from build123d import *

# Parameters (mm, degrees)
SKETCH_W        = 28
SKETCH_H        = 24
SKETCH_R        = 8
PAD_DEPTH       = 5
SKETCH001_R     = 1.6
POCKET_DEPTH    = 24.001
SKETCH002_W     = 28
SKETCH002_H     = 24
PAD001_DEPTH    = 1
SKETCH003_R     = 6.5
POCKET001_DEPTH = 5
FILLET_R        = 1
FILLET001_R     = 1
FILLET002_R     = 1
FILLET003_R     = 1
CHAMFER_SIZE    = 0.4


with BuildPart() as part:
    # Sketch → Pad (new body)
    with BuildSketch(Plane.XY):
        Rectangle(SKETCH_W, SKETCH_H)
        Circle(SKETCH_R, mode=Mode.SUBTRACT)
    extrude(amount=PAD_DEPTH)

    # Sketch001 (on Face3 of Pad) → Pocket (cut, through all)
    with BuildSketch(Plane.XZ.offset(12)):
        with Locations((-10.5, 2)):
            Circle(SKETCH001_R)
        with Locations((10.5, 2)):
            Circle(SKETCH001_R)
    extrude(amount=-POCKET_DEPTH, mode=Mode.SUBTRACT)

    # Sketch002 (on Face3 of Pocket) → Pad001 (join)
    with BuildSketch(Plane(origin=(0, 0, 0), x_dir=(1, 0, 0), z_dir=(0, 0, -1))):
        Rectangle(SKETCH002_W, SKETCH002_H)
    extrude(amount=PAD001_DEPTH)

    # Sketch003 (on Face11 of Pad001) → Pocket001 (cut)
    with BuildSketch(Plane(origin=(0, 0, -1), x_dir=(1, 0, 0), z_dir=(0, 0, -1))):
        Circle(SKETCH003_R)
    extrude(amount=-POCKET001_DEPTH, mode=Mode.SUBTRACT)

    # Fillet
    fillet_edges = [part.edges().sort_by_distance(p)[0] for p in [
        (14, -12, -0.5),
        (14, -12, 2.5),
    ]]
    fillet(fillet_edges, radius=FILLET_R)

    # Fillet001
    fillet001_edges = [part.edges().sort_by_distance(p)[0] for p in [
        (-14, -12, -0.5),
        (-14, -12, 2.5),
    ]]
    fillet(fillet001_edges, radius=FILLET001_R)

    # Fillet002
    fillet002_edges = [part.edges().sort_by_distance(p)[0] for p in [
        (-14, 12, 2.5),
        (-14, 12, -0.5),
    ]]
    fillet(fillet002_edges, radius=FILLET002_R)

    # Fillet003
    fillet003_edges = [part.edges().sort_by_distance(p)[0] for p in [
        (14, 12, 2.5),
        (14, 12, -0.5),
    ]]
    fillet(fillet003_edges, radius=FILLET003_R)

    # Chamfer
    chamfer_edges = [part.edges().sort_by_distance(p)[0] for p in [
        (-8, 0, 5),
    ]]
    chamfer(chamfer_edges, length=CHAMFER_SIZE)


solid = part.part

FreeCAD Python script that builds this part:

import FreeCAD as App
import Part
import Sketcher

V = App.Vector


def edges_at(feature, points):
    """Names of the edges that pass closest to the given points."""
    edges = feature.Shape.Edges
    near = lambda p: min(range(len(edges)), key=lambda i: edges[i].distToShape(Part.Vertex(*p))[0])
    return sorted({f"Edge{near(p) + 1}" for p in points})


def add_polygon(sketch, points):
    """Adds a closed chain of lines whose ends are joined by coincident constraints."""
    first, n = sketch.GeometryCount, len(points)
    for a, b in zip(points, points[1:] + points[:1]):
        sketch.addGeometry(Part.LineSegment(App.Vector(*a, 0), App.Vector(*b, 0)), False)
    for i in range(n):
        sketch.addConstraint(Sketcher.Constraint("Coincident", first + i, 2, first + (i + 1) % n, 1))

doc = App.newDocument("Part")
params = doc.addObject("Spreadsheet::Sheet", "Params")
for row, (alias, value) in enumerate([
    ("sketch1_diameter", "16 mm"),
    ("sketch1_width", "28 mm"),
    ("sketch1_height", "24 mm"),
    ("pad1_length", "5 mm"),
    ("sketch2_diameter", "3.2 mm"),
    ("sketch3_width", "28 mm"),
    ("sketch3_height", "24 mm"),
    ("pad2_length", "1 mm"),
    ("sketch4_diameter", "13 mm"),
    ("pocket2_length", "5 mm"),
    ("fillet_radius", "1 mm"),
    ("fillet2_radius", "1 mm"),
    ("fillet3_radius", "1 mm"),
    ("fillet4_radius", "1 mm"),
    ("chamfer_size", "0.4 mm"),
], start=1):
    params.set(f"A{row}", alias)
    params.set(f"B{row}", "=" + value)
    params.setAlias(f"B{row}", alias)

body = doc.addObject("PartDesign::Body", "Body")

sketch1 = body.newObject("Sketcher::SketchObject", "Sketch")
sketch1.AttachmentSupport = (doc.getObject("XY_Plane"), [""])
sketch1.MapMode = "FlatFace"
add_polygon(sketch1, [(-14, 12), (-14, -12), (14, -12), (14, 12)])
sketch1.addGeometry(Part.Circle(V(0, 0, 0), V(0, 0, 1), 8), False)
sketch1.addConstraint(Sketcher.Constraint("Vertical", 0))
sketch1.addConstraint(Sketcher.Constraint("Horizontal", 1))
sketch1.addConstraint(Sketcher.Constraint("Vertical", 2))
sketch1.addConstraint(Sketcher.Constraint("Horizontal", 3))
sketch1.addConstraint(Sketcher.Constraint("Coincident", 4, 3, -1, 1))
sketch1.addConstraint(Sketcher.Constraint("Symmetric", 0, 2, 2, 2, -1, 1))
sketch1.addConstraint(Sketcher.Constraint("Diameter", 4, 16.0))
sketch1.addConstraint(Sketcher.Constraint("DistanceX", 1, 1, 1, 2, 28.0))
sketch1.addConstraint(Sketcher.Constraint("DistanceY", 0, 2, 0, 1, 24.0))
sketch1.setExpression("Constraints[10]", "Params.sketch1_diameter")
sketch1.setExpression("Constraints[11]", "Params.sketch1_width")
sketch1.setExpression("Constraints[12]", "Params.sketch1_height")
pad1 = body.newObject("PartDesign::Pad", "Pad")
pad1.Profile = sketch1
pad1.setExpression("Length", "Params.pad1_length")

sketch2 = body.newObject("Sketcher::SketchObject", "Sketch001")
sketch2.AttachmentSupport = (doc.getObject("XZ_Plane"), [""])
sketch2.MapMode = "FlatFace"
sketch2.AttachmentOffset = App.Placement(V(0, 0, 12), App.Rotation())
sketch2.addGeometry(Part.Circle(V(-10.5, 2, 0), V(0, 0, 1), 1.6), False)
sketch2.addGeometry(Part.Circle(V(10.5, 2, 0), V(0, 0, 1), 1.6), False)
sketch2.addConstraint(Sketcher.Constraint("Equal", 0, 1))
sketch2.addConstraint(Sketcher.Constraint("Symmetric", 0, 3, 1, 3, -2))
sketch2.addConstraint(Sketcher.Constraint("Diameter", 0, 3.2))
sketch2.addConstraint(Sketcher.Constraint("DistanceY", -1, 1, 0, 3, 2.0))
sketch2.addConstraint(Sketcher.Constraint("DistanceX", 0, 3, 1, 3, 21.0))
sketch2.setExpression("Constraints[2]", "Params.sketch2_diameter")
pocket1 = body.newObject("PartDesign::Pocket", "Pocket")
pocket1.Profile = sketch2
pocket1.Type = "ThroughAll"

sketch3 = body.newObject("Sketcher::SketchObject", "Sketch002")
sketch3.AttachmentSupport = (doc.getObject("XY_Plane"), [""])
sketch3.MapMode = "FlatFace"
add_polygon(sketch3, [(-14, -12), (-14, 12), (14, 12), (14, -12)])
sketch3.addConstraint(Sketcher.Constraint("Vertical", 0))
sketch3.addConstraint(Sketcher.Constraint("Horizontal", 1))
sketch3.addConstraint(Sketcher.Constraint("Vertical", 2))
sketch3.addConstraint(Sketcher.Constraint("Horizontal", 3))
sketch3.addConstraint(Sketcher.Constraint("Symmetric", 0, 2, 2, 2, -1, 1))
sketch3.addConstraint(Sketcher.Constraint("DistanceX", 1, 1, 1, 2, 28.0))
sketch3.addConstraint(Sketcher.Constraint("DistanceY", 0, 1, 0, 2, 24.0))
sketch3.setExpression("Constraints[9]", "Params.sketch3_width")
sketch3.setExpression("Constraints[10]", "Params.sketch3_height")
pad2 = body.newObject("PartDesign::Pad", "Pad001")
pad2.Profile = sketch3
pad2.setExpression("Length", "Params.pad2_length")
pad2.Reversed = True

sketch4 = body.newObject("Sketcher::SketchObject", "Sketch003")
sketch4.AttachmentSupport = (doc.getObject("XY_Plane"), [""])
sketch4.MapMode = "FlatFace"
sketch4.AttachmentOffset = App.Placement(V(0, 0, -1), App.Rotation())
sketch4.addGeometry(Part.Circle(V(0, 0, 0), V(0, 0, 1), 6), False)
sketch4.addConstraint(Sketcher.Constraint("Coincident", 0, 3, -1, 1))
sketch4.addConstraint(Sketcher.Constraint("Diameter", 0, 13.0))
sketch4.setExpression("Constraints[1]", "Params.sketch4_diameter")
pocket2 = body.newObject("PartDesign::Pocket", "Pocket001")
pocket2.Profile = sketch4
pocket2.setExpression("Length", "Params.pocket2_length")
pocket2.Reversed = True
doc.recompute()

fillet = body.newObject("PartDesign::Fillet", "Fillet")
fillet.Base = (pocket2, edges_at(pocket2, [(14, -12, 2), (14, -12, 2)]))
fillet.setExpression("Radius", "Params.fillet_radius")
doc.recompute()

fillet2 = body.newObject("PartDesign::Fillet", "Fillet001")
fillet2.Base = (fillet, edges_at(fillet, [(-14, -12, 2), (-14, -12, 2)]))
fillet2.setExpression("Radius", "Params.fillet2_radius")
doc.recompute()

fillet3 = body.newObject("PartDesign::Fillet", "Fillet002")
fillet3.Base = (fillet2, edges_at(fillet2, [(-14, 12, 2), (-14, 12, 2)]))
fillet3.setExpression("Radius", "Params.fillet3_radius")
doc.recompute()

fillet4 = body.newObject("PartDesign::Fillet", "Fillet003")
fillet4.Base = (fillet3, edges_at(fillet3, [(14, 12, 2), (14, 12, 2)]))
fillet4.setExpression("Radius", "Params.fillet4_radius")
doc.recompute()

chamfer = body.newObject("PartDesign::Chamfer", "Chamfer")
chamfer.Base = (fillet4, edges_at(fillet4, [(-8, 0, 5)]))
chamfer.setExpression("Size", "Params.chamfer_size")

doc.recompute()
